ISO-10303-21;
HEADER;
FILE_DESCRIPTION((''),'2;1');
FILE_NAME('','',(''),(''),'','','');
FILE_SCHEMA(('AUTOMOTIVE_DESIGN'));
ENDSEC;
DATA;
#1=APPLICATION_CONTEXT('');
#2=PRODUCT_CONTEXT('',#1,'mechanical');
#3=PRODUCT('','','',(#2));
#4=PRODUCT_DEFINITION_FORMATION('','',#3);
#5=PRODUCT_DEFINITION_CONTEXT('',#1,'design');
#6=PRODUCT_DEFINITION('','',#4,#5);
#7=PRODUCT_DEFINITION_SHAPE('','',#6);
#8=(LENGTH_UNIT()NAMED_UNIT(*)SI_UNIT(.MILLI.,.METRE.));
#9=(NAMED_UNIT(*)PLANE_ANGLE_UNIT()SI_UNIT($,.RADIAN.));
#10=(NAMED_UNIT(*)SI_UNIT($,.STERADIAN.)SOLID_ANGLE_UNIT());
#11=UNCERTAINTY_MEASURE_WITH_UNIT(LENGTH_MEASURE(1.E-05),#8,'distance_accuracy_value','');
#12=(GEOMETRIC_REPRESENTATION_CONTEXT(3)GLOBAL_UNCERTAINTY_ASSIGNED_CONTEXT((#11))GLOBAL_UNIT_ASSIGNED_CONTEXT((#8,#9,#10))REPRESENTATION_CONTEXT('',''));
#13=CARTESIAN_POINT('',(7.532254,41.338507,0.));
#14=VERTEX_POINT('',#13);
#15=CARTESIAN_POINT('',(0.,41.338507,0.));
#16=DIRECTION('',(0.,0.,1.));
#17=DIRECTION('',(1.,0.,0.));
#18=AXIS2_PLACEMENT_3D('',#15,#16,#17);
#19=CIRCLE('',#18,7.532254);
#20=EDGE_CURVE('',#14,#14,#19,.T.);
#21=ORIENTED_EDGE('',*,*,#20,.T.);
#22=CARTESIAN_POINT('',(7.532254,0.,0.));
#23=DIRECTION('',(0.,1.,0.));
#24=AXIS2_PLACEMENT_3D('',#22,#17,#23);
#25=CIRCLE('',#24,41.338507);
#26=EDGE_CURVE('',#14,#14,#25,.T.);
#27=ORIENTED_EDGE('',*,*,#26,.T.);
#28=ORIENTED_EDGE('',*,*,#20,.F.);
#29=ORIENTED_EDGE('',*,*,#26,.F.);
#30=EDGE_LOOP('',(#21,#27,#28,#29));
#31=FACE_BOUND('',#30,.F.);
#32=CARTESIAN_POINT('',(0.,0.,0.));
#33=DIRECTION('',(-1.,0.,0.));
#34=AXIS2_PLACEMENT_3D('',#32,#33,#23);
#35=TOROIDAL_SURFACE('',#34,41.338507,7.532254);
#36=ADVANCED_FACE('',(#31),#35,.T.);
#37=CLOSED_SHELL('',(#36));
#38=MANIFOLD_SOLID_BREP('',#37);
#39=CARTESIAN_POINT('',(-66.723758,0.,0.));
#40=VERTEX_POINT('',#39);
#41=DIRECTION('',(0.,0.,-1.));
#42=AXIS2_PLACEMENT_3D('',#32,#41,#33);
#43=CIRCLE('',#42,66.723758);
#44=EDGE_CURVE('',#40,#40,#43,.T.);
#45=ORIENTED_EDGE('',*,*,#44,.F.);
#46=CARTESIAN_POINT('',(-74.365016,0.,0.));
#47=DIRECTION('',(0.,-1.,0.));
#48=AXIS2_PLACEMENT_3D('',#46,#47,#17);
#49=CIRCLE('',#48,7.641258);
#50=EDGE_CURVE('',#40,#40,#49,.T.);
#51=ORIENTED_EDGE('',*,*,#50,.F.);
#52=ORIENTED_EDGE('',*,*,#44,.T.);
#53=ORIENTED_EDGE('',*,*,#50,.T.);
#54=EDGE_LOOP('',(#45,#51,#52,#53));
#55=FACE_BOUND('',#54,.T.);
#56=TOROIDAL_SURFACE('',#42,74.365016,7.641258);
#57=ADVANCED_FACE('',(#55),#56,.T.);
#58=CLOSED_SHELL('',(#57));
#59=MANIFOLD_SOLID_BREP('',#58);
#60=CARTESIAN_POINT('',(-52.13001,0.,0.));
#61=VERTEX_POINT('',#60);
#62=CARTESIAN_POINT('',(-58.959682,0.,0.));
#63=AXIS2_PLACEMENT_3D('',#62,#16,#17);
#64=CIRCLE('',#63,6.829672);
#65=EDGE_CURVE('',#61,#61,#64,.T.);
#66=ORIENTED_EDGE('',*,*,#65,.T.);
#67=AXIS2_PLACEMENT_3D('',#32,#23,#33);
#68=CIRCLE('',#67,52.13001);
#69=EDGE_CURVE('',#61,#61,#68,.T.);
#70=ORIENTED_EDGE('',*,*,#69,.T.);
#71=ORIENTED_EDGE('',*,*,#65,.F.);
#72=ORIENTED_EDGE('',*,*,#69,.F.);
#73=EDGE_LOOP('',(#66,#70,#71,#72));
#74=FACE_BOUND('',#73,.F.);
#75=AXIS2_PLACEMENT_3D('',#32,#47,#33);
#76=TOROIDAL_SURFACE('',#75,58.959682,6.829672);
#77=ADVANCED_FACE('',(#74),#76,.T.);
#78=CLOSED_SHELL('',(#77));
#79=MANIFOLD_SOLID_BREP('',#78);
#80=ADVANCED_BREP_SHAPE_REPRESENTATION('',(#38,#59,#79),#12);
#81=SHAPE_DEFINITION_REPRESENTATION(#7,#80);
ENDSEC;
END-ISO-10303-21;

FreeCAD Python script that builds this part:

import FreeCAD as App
import Part
import Sketcher

V = App.Vector
Q = App.Units.Quantity

doc = App.newDocument("Part")
body = doc.addObject("PartDesign::Body", "Body")

# Sketch on XZ plane
sketch1 = body.newObject("Sketcher::SketchObject", "Sketch")
sketch1.AttachmentSupport = (doc.getObject("XZ_Plane"), [""])
sketch1.MapMode = "FlatFace"
sketch1.addGeometry(Part.Circle(V(-74, 0, 0), V(0, 0, 1), 8), False)
sketch1.addConstraint([
    Sketcher.Constraint("PointOnObject", 0, 3, -1),
    Sketcher.Constraint("Diameter", 0, Q("15.282516 mm")),
    Sketcher.Constraint("DistanceX", 0, 3, -1, 1, Q("74.365016 mm")),
])
revolution = body.newObject("PartDesign::Revolution", "Revolution")
revolution.Profile = sketch1
revolution.ReferenceAxis = (sketch1, ["V_Axis"])
revolution.Angle = 360
body2 = doc.addObject("PartDesign::Body", "Body001")

# Sketch on XY plane
sketch2 = body2.newObject("Sketcher::SketchObject", "Sketch001")
sketch2.AttachmentSupport = (doc.getObject("XY_Plane001"), [""])
sketch2.MapMode = "FlatFace"
sketch2.addGeometry(Part.Circle(V(-59, 0, 0), V(0, 0, 1), 7), False)
sketch2.addConstraint([
    Sketcher.Constraint("PointOnObject", 0, 3, -1),
    Sketcher.Constraint("Diameter", 0, Q("13.659344 mm")),
    Sketcher.Constraint("DistanceX", 0, 3, -1, 1, Q("58.959682 mm")),
])
revolution2 = body2.newObject("PartDesign::Revolution", "Revolution001")
revolution2.Profile = sketch2
revolution2.ReferenceAxis = (sketch2, ["V_Axis"])
revolution2.Angle = 360
body3 = doc.addObject("PartDesign::Body", "Body002")

# Sketch on XY plane
sketch3 = body3.newObject("Sketcher::SketchObject", "Sketch002")
sketch3.AttachmentSupport = (doc.getObject("XY_Plane002"), [""])
sketch3.MapMode = "FlatFace"
sketch3.addGeometry(Part.Circle(V(0, 41, 0), V(0, 0, 1), 8), False)
sketch3.addConstraint([
    Sketcher.Constraint("PointOnObject", 0, 3, -2),
    Sketcher.Constraint("Diameter", 0, Q("15.064508 mm")),
    Sketcher.Constraint("DistanceY", -1, 1, 0, 3, Q("41.338507 mm")),
])
revolution3 = body3.newObject("PartDesign::Revolution", "Revolution002")
revolution3.Profile = sketch3
revolution3.ReferenceAxis = (sketch3, ["H_Axis"])
revolution3.Angle = 360

doc.recompute()
